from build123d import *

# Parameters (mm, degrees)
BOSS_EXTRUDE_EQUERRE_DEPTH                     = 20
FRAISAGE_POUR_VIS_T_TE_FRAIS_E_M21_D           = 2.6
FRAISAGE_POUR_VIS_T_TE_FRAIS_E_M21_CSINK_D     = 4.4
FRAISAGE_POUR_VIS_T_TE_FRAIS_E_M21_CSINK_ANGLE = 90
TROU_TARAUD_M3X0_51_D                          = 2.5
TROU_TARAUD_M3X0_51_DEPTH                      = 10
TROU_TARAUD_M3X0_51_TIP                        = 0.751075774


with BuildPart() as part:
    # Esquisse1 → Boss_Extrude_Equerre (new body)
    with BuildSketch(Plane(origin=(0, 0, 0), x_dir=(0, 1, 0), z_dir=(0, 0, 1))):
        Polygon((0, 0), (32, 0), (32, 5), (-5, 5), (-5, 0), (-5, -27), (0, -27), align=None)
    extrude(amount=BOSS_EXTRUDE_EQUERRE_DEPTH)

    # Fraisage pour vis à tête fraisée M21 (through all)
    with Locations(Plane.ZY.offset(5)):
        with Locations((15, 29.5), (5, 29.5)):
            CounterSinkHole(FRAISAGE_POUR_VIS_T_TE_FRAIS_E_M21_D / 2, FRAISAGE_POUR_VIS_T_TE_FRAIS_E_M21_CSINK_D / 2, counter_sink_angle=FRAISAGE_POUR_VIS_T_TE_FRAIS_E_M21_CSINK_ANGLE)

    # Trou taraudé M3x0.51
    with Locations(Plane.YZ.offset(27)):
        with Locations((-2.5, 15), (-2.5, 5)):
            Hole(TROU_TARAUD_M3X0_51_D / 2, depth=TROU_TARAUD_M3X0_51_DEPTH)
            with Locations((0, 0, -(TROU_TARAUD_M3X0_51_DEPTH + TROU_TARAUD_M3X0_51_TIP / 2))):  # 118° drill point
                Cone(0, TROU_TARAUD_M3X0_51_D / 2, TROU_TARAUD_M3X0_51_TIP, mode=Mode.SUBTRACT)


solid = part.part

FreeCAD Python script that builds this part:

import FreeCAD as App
import Part
import Sketcher

V = App.Vector

doc = App.newDocument("Part")
body = doc.addObject("PartDesign::Body", "Body")

# Sketch on XY plane
sketch1 = body.newObject("Sketcher::SketchObject", "Sketch")
sketch1.AttachmentSupport = (doc.getObject("XY_Plane"), [""])
sketch1.MapMode = "FlatFace"
sketch1.addGeometry(Part.LineSegment(V(0, 0, 0), V(0, 32, 0)), False)
sketch1.addGeometry(Part.LineSegment(V(0, 32, 0), V(-5, 32, 0)), False)
sketch1.addGeometry(Part.LineSegment(V(-5, 32, 0), V(-5, -5, 0)), False)
sketch1.addGeometry(Part.LineSegment(V(-5, -5, 0), V(27, -5, 0)), False)
sketch1.addGeometry(Part.LineSegment(V(27, -5, 0), V(27, 0, 0)), False)
sketch1.addGeometry(Part.LineSegment(V(27, 0, 0), V(0, 0, 0)), False)
sketch1.addConstraint(Sketcher.Constraint("Coincident", 0, 2, 1, 1))
sketch1.addConstraint(Sketcher.Constraint("Coincident", 1, 2, 2, 1))
sketch1.addConstraint(Sketcher.Constraint("Coincident", 2, 2, 3, 1))
sketch1.addConstraint(Sketcher.Constraint("Coincident", 3, 2, 4, 1))
sketch1.addConstraint(Sketcher.Constraint("Coincident", 4, 2, 5, 1))
sketch1.addConstraint(Sketcher.Constraint("Coincident", 5, 2, 0, 1))
sketch1.addConstraint(Sketcher.Constraint("Vertical", 0))
sketch1.addConstraint(Sketcher.Constraint("Horizontal", 1))
sketch1.addConstraint(Sketcher.Constraint("Vertical", 2))
sketch1.addConstraint(Sketcher.Constraint("Horizontal", 3))
sketch1.addConstraint(Sketcher.Constraint("Vertical", 4))
sketch1.addConstraint(Sketcher.Constraint("Horizontal", 5))
sketch1.addConstraint(Sketcher.Constraint("Coincident", 5, 2, -1, 1))
sketch1.addConstraint(Sketcher.Constraint("Equal", 3, 0))
sketch1.addConstraint(Sketcher.Constraint("Equal", 1, 4))
sketch1.addConstraint(Sketcher.Constraint("DistanceX", 1, 2, 1, 1, 5.0))
sketch1.addConstraint(Sketcher.Constraint("DistanceX", 3, 1, 3, 2, 32.0))
pad1 = body.newObject("PartDesign::Pad", "Pad")
pad1.Profile = sketch1
pad1.Length = 20

# Sketch on YZ plane
sketch2 = body.newObject("Sketcher::SketchObject", "Sketch001")
sketch2.AttachmentSupport = (doc.getObject("YZ_Plane"), [""])
sketch2.MapMode = "FlatFace"
sketch2.AttachmentOffset = App.Placement(V(0, 0, -5), App.Rotation())
sketch2.addGeometry(Part.Circle(V(29.5, 15, 0), V(0, 0, 1), 1.3), False)
sketch2.addGeometry(Part.Circle(V(29.5, 5, 0), V(0, 0, 1), 1.3), False)
sketch2.addConstraint(Sketcher.Constraint("Equal", 0, 1))
sketch2.addConstraint(Sketcher.Constraint("Vertical", 0, 3, 1, 3))
sketch2.addConstraint(Sketcher.Constraint("Diameter", 0, 2.6))
sketch2.addConstraint(Sketcher.Constraint("DistanceY", -1, 1, 0, 3, 15.0))
sketch2.addConstraint(Sketcher.Constraint("DistanceY", -1, 1, 1, 3, 5.0))
sketch2.addConstraint(Sketcher.Constraint("DistanceX", -1, 1, 0, 3, 29.5))
doc.recompute()
hole = body.newObject("PartDesign::Hole", "Hole")
hole.Profile = sketch2
hole.ThreadType = "None"
hole.Diameter = 2.6
hole.DepthType = "ThroughAll"
hole.HoleCutType = "Countersink"
hole.HoleCutDiameter = 4.4
hole.HoleCutCountersinkAngle = 90
hole.Reversed = True

# Sketch on YZ plane
sketch3 = body.newObject("Sketcher::SketchObject", "Sketch002")
sketch3.AttachmentSupport = (doc.getObject("YZ_Plane"), [""])
sketch3.MapMode = "FlatFace"
sketch3.AttachmentOffset = App.Placement(V(0, 0, 27), App.Rotation())
sketch3.addGeometry(Part.Circle(V(-2.5, 15, 0), V(0, 0, 1), 1.2), False)
sketch3.addGeometry(Part.Circle(V(-2.5, 5, 0), V(0, 0, 1), 1.2), False)
sketch3.addConstraint(Sketcher.Constraint("Equal", 0, 1))
sketch3.addConstraint(Sketcher.Constraint("Vertical", 0, 3, 1, 3))
sketch3.addConstraint(Sketcher.Constraint("Diameter", 0, 2.5))
sketch3.addConstraint(Sketcher.Constraint("DistanceY", -1, 1, 0, 3, 15.0))
sketch3.addConstraint(Sketcher.Constraint("DistanceY", -1, 1, 1, 3, 5.0))
sketch3.addConstraint(Sketcher.Constraint("DistanceX", 0, 3, -1, 1, 2.5))
doc.recompute()
hole2 = body.newObject("PartDesign::Hole", "Hole001")
hole2.Profile = sketch3
hole2.ThreadType = "None"
hole2.Diameter = 2.5
hole2.DepthType = "Dimension"
hole2.Depth = 10
hole2.DrillPoint = "Angled"
hole2.DrillPointAngle = 118

doc.recompute()
